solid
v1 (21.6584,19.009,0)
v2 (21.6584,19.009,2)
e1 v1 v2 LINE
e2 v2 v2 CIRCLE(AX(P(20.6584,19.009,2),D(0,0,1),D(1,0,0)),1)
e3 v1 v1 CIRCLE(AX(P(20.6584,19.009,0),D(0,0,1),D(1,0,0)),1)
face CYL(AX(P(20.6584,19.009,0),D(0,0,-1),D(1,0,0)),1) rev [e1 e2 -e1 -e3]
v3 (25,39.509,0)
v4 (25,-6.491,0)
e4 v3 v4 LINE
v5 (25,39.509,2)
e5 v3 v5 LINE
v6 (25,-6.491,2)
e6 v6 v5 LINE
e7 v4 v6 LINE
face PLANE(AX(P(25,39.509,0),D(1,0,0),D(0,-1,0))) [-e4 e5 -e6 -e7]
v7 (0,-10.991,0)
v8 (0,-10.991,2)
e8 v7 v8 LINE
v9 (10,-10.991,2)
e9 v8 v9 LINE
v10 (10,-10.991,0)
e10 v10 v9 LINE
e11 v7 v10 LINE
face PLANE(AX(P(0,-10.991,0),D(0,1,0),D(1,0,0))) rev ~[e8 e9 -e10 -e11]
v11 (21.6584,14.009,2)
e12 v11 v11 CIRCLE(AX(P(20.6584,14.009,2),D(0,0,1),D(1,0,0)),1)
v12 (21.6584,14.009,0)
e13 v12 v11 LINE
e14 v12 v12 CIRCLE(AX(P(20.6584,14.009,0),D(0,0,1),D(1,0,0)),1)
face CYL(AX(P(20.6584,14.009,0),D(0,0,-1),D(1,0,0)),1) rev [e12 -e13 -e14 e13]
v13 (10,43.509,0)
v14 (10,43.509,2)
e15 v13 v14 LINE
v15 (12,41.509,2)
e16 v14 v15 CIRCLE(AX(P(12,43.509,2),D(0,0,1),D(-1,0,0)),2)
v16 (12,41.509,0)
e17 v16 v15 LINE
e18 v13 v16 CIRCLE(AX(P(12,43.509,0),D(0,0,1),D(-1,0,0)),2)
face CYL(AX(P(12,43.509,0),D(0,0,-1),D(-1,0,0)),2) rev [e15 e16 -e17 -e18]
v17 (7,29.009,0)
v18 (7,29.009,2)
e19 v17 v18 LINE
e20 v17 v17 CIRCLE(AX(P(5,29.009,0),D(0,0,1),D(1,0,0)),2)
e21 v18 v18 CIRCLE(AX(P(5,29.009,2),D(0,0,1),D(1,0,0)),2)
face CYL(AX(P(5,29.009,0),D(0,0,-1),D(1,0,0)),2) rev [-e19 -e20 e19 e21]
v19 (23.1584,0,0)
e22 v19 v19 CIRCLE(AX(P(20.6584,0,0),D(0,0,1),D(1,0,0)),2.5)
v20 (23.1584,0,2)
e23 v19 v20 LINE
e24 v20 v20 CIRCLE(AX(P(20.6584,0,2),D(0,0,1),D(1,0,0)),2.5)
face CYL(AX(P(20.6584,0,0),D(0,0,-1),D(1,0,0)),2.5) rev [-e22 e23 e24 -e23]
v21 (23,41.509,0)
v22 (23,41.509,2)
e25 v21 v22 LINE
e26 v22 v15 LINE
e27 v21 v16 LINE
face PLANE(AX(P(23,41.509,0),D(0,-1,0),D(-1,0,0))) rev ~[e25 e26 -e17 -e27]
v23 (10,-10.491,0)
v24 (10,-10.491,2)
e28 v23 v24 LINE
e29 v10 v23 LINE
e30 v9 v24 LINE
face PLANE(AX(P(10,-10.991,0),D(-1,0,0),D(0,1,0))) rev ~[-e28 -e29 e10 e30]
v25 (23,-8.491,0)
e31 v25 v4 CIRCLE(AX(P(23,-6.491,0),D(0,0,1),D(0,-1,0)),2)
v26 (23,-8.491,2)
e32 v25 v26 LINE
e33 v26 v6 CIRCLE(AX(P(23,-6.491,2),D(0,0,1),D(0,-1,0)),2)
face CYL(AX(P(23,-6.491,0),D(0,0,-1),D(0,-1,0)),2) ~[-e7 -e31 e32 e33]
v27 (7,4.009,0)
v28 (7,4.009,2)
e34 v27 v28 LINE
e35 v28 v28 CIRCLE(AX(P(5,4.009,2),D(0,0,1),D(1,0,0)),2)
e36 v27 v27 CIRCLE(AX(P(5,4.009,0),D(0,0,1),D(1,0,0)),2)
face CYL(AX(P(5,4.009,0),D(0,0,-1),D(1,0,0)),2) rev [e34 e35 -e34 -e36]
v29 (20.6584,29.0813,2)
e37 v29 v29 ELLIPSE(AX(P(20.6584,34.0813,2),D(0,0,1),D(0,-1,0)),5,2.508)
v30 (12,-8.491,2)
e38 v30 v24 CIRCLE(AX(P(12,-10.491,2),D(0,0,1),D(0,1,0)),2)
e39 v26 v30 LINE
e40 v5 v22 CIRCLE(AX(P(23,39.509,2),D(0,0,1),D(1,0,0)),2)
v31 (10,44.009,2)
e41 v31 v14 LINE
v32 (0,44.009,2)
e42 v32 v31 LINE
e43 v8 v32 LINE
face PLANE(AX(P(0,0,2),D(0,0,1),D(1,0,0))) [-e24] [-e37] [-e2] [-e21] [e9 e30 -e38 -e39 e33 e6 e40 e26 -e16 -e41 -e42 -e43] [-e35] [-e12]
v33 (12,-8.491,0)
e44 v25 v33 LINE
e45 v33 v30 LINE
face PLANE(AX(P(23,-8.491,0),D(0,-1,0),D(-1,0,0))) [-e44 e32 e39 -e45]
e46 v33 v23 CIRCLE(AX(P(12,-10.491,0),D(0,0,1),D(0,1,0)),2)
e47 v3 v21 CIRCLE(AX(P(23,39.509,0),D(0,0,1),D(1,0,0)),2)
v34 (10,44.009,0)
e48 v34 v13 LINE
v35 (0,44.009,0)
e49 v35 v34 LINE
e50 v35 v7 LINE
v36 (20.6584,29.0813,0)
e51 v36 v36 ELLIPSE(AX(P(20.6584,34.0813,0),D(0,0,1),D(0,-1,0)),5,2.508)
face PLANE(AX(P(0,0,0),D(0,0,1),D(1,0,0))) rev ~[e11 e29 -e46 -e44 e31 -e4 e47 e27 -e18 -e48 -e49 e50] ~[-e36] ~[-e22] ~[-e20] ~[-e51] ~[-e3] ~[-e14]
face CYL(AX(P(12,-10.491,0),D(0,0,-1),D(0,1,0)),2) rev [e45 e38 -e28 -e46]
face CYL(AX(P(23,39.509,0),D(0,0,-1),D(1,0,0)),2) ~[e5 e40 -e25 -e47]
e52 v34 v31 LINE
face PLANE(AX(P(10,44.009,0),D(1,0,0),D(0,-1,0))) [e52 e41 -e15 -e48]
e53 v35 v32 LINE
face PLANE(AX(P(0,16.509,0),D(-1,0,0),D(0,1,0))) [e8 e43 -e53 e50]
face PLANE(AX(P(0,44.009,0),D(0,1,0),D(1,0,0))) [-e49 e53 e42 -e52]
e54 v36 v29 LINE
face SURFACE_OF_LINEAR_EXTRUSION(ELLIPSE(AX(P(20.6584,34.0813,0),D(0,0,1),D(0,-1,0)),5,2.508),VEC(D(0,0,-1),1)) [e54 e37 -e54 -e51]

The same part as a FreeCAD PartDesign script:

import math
import FreeCAD as App
import Part
import Sketcher

V = App.Vector

doc = App.newDocument("Part")
body = doc.addObject("PartDesign::Body", "Body")

# Sketch on XY plane
sketch1 = doc.addObject("Sketcher::SketchObject", "Sketch")
body.addObject(sketch1)
sketch1.AttachmentSupport = (doc.XY_Plane, [""])
sketch1.MapMode = "FlatFace"
sketch1.addGeometry([
    Part.LineSegment(V(10, 44.009, 0), V(0, 44.009, 0)),  # 0
    Part.LineSegment(V(0, 44.009, 0), V(0, -10.991, 0)),  # 1
    Part.LineSegment(V(0, -10.991, 0), V(10, -10.991, 0)),  # 2
    Part.LineSegment(V(10, -10.991, 0), V(10, -10.491, 0)),  # 3
    Part.ArcOfCircle(Part.Circle(V(12, -10.491, 0), V(0, 0, 1), 2), math.radians(90), math.radians(180)),  # 4
    Part.LineSegment(V(12, -8.491, 0), V(23, -8.491, 0)),  # 5
    Part.ArcOfCircle(Part.Circle(V(23, -6.491, 0), V(0, 0, 1), 2), math.radians(-90), math.radians(0)),  # 6
    Part.LineSegment(V(25, -6.491, 0), V(25, 39.509, 0)),  # 7
    Part.ArcOfCircle(Part.Circle(V(23, 39.509, 0), V(0, 0, 1), 2), math.radians(0), math.radians(90)),  # 8
    Part.LineSegment(V(23, 41.509, 0), V(12, 41.509, 0)),  # 9
    Part.ArcOfCircle(Part.Circle(V(12, 43.509, 0), V(0, 0, 1), 2), math.radians(180), math.radians(270)),  # 10
    Part.LineSegment(V(10, 43.509, 0), V(10, 44.009, 0)),  # 11
    Part.Circle(V(5, 29.009, 0), V(0, 0, 1), 2),  # 12
    Part.Circle(V(20.6584, 19.009, 0), V(0, 0, 1), 1),  # 13
    Part.Ellipse(V(20.6584, 29.0813, 0), V(23.1664, 34.0813, 0), V(20.6584, 34.0813, 0)),  # 14
    Part.Circle(V(20.6584, 14.009, 0), V(0, 0, 1), 1),  # 15
    Part.Circle(V(5, 4.009, 0), V(0, 0, 1), 2),  # 16
    Part.Circle(V(20.6584, 0, 0), V(0, 0, 1), 2.5),  # 17
], False)
sketch1.addConstraint([
    Sketcher.Constraint("Block", 14),
    Sketcher.Constraint("Coincident", 0, 2, 1, 1),
    Sketcher.Constraint("Coincident", 1, 2, 2, 1),
    Sketcher.Constraint("Coincident", 2, 2, 3, 1),
    Sketcher.Constraint("Tangent", 3, 2, 4, 2),
    Sketcher.Constraint("Tangent", 4, 1, 5, 1),
    Sketcher.Constraint("Tangent", 5, 2, 6, 1),
    Sketcher.Constraint("Tangent", 6, 2, 7, 1),
    Sketcher.Constraint("Tangent", 7, 2, 8, 1),
    Sketcher.Constraint("Tangent", 8, 2, 9, 1),
    Sketcher.Constraint("Tangent", 9, 2, 10, 2),
    Sketcher.Constraint("Tangent", 10, 1, 11, 1),
    Sketcher.Constraint("Coincident", 11, 2, 0, 1),
    Sketcher.Constraint("Horizontal", 0),
    Sketcher.Constraint("Vertical", 1),
    Sketcher.Constraint("Horizontal", 2),
    Sketcher.Constraint("Vertical", 3),
    Sketcher.Constraint("Horizontal", 5),
    Sketcher.Constraint("Vertical", 7),
    Sketcher.Constraint("Horizontal", 9),
    Sketcher.Constraint("Vertical", 11),
    Sketcher.Constraint("Equal", 4, 6),
    Sketcher.Constraint("Equal", 6, 8),
    Sketcher.Constraint("Equal", 8, 10),
    Sketcher.Constraint("Equal", 10, 12),
    Sketcher.Constraint("Equal", 13, 15),
    Sketcher.Constraint("Equal", 12, 16),
    Sketcher.Constraint("PointOnObject", 17, 3, -1),
    Sketcher.Constraint("PointOnObject", 0, 2, -2),
    Sketcher.Constraint("Vertical", 4, 3, 10, 3),
    Sketcher.Constraint("Vertical", 13, 3, 15, 3),
    Sketcher.Constraint("Vertical", 12, 3, 16, 3),
    Sketcher.Constraint("Vertical", 15, 3, 17, 3),
    Sketcher.Constraint("Equal", 3, 11),
    Sketcher.Constraint("Diameter", 12, 4.0),
    Sketcher.Constraint("Diameter", 13, 2.0),
    Sketcher.Constraint("Diameter", 17, 5.0),
    Sketcher.Constraint("DistanceY", 1, 2, 1, 1, 55.0),
    Sketcher.Constraint("DistanceX", -1, 1, 12, 3, 5.0),
    Sketcher.Constraint("DistanceX", -1, 1, 6, 2, 25.0),
    Sketcher.Constraint("DistanceY", 4, 3, 8, 3, 50.0),
    Sketcher.Constraint("DistanceY", 15, 3, 13, 3, 5.0),
    Sketcher.Constraint("DistanceY", 16, 3, 12, 3, 25.0),
    Sketcher.Constraint("DistanceY", 13, 3, 0, 2, 25.0),
    Sketcher.Constraint("DistanceX", 16, 3, 2, 2, 5.0),
    Sketcher.Constraint("DistanceY", 12, 3, 8, 2, 12.5),
    Sketcher.Constraint("DistanceY", 4, 3, -1, 1, 10.491),
    Sketcher.Constraint("DistanceX", -1, 1, 13, 3, 20.6584),
])
pad1 = doc.addObject("PartDesign::Pad", "Pad")
body.addObject(pad1)
pad1.Profile = sketch1
pad1.Length = 2

doc.recompute()
